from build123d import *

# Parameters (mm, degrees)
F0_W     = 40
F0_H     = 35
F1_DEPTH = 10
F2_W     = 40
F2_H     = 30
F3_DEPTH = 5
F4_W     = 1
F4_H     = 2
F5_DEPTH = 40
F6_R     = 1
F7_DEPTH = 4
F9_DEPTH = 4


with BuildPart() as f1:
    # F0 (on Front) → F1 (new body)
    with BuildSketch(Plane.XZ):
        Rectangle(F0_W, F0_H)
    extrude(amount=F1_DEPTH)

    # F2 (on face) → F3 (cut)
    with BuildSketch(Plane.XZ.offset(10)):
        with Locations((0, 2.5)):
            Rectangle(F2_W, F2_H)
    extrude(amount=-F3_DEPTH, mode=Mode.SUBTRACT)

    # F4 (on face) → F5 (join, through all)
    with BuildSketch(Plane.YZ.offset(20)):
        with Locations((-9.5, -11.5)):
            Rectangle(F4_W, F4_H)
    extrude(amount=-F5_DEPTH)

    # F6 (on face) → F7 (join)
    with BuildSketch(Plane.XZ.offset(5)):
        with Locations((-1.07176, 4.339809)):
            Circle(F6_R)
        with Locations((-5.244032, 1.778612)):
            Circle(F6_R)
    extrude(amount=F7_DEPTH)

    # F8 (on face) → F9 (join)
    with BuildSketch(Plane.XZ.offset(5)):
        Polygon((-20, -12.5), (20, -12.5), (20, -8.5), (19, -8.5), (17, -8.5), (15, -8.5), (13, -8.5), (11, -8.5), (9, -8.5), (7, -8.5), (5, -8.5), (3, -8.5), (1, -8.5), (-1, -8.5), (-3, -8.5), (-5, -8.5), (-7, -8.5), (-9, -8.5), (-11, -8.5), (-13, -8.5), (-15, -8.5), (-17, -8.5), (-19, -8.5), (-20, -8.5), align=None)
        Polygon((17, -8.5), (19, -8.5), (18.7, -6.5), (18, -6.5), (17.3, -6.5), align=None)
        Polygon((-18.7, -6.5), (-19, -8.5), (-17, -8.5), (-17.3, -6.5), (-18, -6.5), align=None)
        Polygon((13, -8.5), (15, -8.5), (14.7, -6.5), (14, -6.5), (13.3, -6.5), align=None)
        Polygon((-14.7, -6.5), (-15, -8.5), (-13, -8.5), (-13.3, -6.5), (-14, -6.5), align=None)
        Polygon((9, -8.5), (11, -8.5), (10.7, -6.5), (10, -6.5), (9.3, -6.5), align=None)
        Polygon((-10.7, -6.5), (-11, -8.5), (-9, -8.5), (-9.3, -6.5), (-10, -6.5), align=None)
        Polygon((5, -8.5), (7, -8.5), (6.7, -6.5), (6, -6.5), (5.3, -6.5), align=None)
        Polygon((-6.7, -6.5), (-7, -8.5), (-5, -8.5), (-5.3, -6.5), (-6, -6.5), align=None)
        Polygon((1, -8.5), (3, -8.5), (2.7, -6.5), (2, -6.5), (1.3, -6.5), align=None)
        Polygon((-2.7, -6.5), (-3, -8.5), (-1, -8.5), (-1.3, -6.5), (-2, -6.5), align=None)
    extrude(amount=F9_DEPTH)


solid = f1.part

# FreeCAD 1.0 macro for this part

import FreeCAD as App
import Part
import Sketcher

V = App.Vector

doc = App.newDocument("Part")
body = doc.addObject("PartDesign::Body", "Body")

# Sketch on XZ plane
sketch1 = body.newObject("Sketcher::SketchObject", "Sketch")
sketch1.AttachmentSupport = (doc.getObject("XZ_Plane"), [""])
sketch1.MapMode = "FlatFace"
sketch1.addGeometry([
    Part.LineSegment(V(-20, 18, 0), V(-20, -18, 0)),
    Part.LineSegment(V(-20, -18, 0), V(20, -18, 0)),
    Part.LineSegment(V(20, -18, 0), V(20, 18, 0)),
    Part.LineSegment(V(20, 18, 0), V(-20, 18, 0)),
], False)
sketch1.addConstraint([
    Sketcher.Constraint("Coincident", 0, 2, 1, 1),
    Sketcher.Constraint("Coincident", 1, 2, 2, 1),
    Sketcher.Constraint("Coincident", 2, 2, 3, 1),
    Sketcher.Constraint("Coincident", 3, 2, 0, 1),
    Sketcher.Constraint("Vertical", 0),
    Sketcher.Constraint("Horizontal", 1),
    Sketcher.Constraint("Vertical", 2),
    Sketcher.Constraint("Horizontal", 3),
    Sketcher.Constraint("Symmetric", 0, 2, 2, 2, -1, 1),
    Sketcher.Constraint("DistanceX", 1, 1, 1, 2, 40.0),
    Sketcher.Constraint("DistanceY", 0, 2, 0, 1, 35.0),
])
pad1 = body.newObject("PartDesign::Pad", "Pad")
pad1.Profile = sketch1
pad1.Length = 10

# Sketch on XZ plane
sketch2 = body.newObject("Sketcher::SketchObject", "Sketch001")
sketch2.AttachmentSupport = (doc.getObject("XZ_Plane"), [""])
sketch2.MapMode = "FlatFace"
sketch2.AttachmentOffset = App.Placement(V(0, 0, 10), App.Rotation())
sketch2.addGeometry([
    Part.LineSegment(V(-20, 18, 0), V(-20, -12, 0)),
    Part.LineSegment(V(-20, -12, 0), V(20, -12, 0)),
    Part.LineSegment(V(20, -12, 0), V(20, 18, 0)),
    Part.LineSegment(V(20, 18, 0), V(-20, 18, 0)),
], False)
sketch2.addConstraint([
    Sketcher.Constraint("Coincident", 0, 2, 1, 1),
    Sketcher.Constraint("Coincident", 1, 2, 2, 1),
    Sketcher.Constraint("Coincident", 2, 2, 3, 1),
    Sketcher.Constraint("Coincident", 3, 2, 0, 1),
    Sketcher.Constraint("Vertical", 0),
    Sketcher.Constraint("Horizontal", 1),
    Sketcher.Constraint("Vertical", 2),
    Sketcher.Constraint("Horizontal", 3),
    Sketcher.Constraint("DistanceX", 1, 1, 1, 2, 40.0),
    Sketcher.Constraint("DistanceY", 0, 2, 0, 1, 30.0),
    Sketcher.Constraint("DistanceX", 0, 2, -1, 1, 20.0),
    Sketcher.Constraint("DistanceY", 0, 2, -1, 1, 12.5),
])
pocket1 = body.newObject("PartDesign::Pocket", "Pocket")
pocket1.Profile = sketch2
pocket1.Length = 5

# Sketch on YZ plane
sketch3 = body.newObject("Sketcher::SketchObject", "Sketch002")
sketch3.AttachmentSupport = (doc.getObject("YZ_Plane"), [""])
sketch3.MapMode = "FlatFace"
sketch3.AttachmentOffset = App.Placement(V(0, 0, 20), App.Rotation())
sketch3.addGeometry([
    Part.LineSegment(V(-10, -10.5, 0), V(-10, -12.5, 0)),
    Part.LineSegment(V(-10, -12.5, 0), V(-9, -12.5, 0)),
    Part.LineSegment(V(-9, -12.5, 0), V(-9, -10.5, 0)),
    Part.LineSegment(V(-9, -10.5, 0), V(-10, -10.5, 0)),
], False)
sketch3.addConstraint([
    Sketcher.Constraint("Coincident", 0, 2, 1, 1),
    Sketcher.Constraint("Coincident", 1, 2, 2, 1),
    Sketcher.Constraint("Coincident", 2, 2, 3, 1),
    Sketcher.Constraint("Coincident", 3, 2, 0, 1),
    Sketcher.Constraint("Vertical", 0),
    Sketcher.Constraint("Horizontal", 1),
    Sketcher.Constraint("Vertical", 2),
    Sketcher.Constraint("Horizontal", 3),
    Sketcher.Constraint("DistanceX", 1, 1, 1, 2, 1.0),
    Sketcher.Constraint("DistanceY", 0, 2, 0, 1, 2.0),
    Sketcher.Constraint("DistanceX", 0, 2, -1, 1, 10.0),
    Sketcher.Constraint("DistanceY", 0, 2, -1, 1, 12.5),
])
pad2 = body.newObject("PartDesign::Pad", "Pad001")
pad2.Profile = sketch3
pad2.Length = 40
pad2.Reversed = True

# Sketch on XZ plane
sketch4 = body.newObject("Sketcher::SketchObject", "Sketch003")
sketch4.AttachmentSupport = (doc.getObject("XZ_Plane"), [""])
sketch4.MapMode = "FlatFace"
sketch4.AttachmentOffset = App.Placement(V(0, 0, 5), App.Rotation())
sketch4.addGeometry([
    Part.Circle(V(-1.1, 4.3, 0), V(0, 0, 1), 1),
    Part.Circle(V(-5.2, 1.8, 0), V(0, 0, 1), 1),
], False)
sketch4.addConstraint([
    Sketcher.Constraint("Equal", 0, 1),
    Sketcher.Constraint("Diameter", 0, 2.0),
    Sketcher.Constraint("DistanceX", 0, 3, -1, 1, 1.07176),
    Sketcher.Constraint("DistanceY", -1, 1, 0, 3, 4.339809),
    Sketcher.Constraint("DistanceX", 1, 3, -1, 1, 5.244032),
    Sketcher.Constraint("DistanceY", -1, 1, 1, 3, 1.778612),
])
pad3 = body.newObject("PartDesign::Pad", "Pad002")
pad3.Profile = sketch4
pad3.Length = 4

# Sketch on XZ plane
sketch5 = body.newObject("Sketcher::SketchObject", "Sketch004")
sketch5.AttachmentSupport = (doc.getObject("XZ_Plane"), [""])
sketch5.MapMode = "FlatFace"
sketch5.AttachmentOffset = App.Placement(V(0, 0, 5), App.Rotation())
sketch5.addGeometry([
    Part.LineSegment(V(-20, -12.5, 0), V(20, -12.5, 0)),  # 0
    Part.LineSegment(V(20, -12.5, 0), V(20, -8.5, 0)),  # 1
    Part.LineSegment(V(20, -8.5, 0), V(19, -8.5, 0)),  # 2
    Part.LineSegment(V(19, -8.5, 0), V(18.7, -6.5, 0)),  # 3
    Part.LineSegment(V(18.7, -6.5, 0), V(17.3, -6.5, 0)),  # 4
    Part.LineSegment(V(17.3, -6.5, 0), V(17, -8.5, 0)),  # 5
    Part.LineSegment(V(17, -8.5, 0), V(15, -8.5, 0)),  # 6
    Part.LineSegment(V(15, -8.5, 0), V(14.7, -6.5, 0)),  # 7
    Part.LineSegment(V(14.7, -6.5, 0), V(13.3, -6.5, 0)),  # 8
    Part.LineSegment(V(13.3, -6.5, 0), V(13, -8.5, 0)),  # 9
    Part.LineSegment(V(13, -8.5, 0), V(11, -8.5, 0)),  # 10
    Part.LineSegment(V(11, -8.5, 0), V(10.7, -6.5, 0)),  # 11
    Part.LineSegment(V(10.7, -6.5, 0), V(9.3, -6.5, 0)),  # 12
    Part.LineSegment(V(9.3, -6.5, 0), V(9, -8.5, 0)),  # 13
    Part.LineSegment(V(9, -8.5, 0), V(7, -8.5, 0)),  # 14
    Part.LineSegment(V(7, -8.5, 0), V(6.7, -6.5, 0)),  # 15
    Part.LineSegment(V(6.7, -6.5, 0), V(5.3, -6.5, 0)),  # 16
    Part.LineSegment(V(5.3, -6.5, 0), V(5, -8.5, 0)),  # 17
    Part.LineSegment(V(5, -8.5, 0), V(3, -8.5, 0)),  # 18
    Part.LineSegment(V(3, -8.5, 0), V(2.7, -6.5, 0)),  # 19
    Part.LineSegment(V(2.7, -6.5, 0), V(1.3, -6.5, 0)),  # 20
    Part.LineSegment(V(1.3, -6.5, 0), V(1, -8.5, 0)),  # 21
    Part.LineSegment(V(1, -8.5, 0), V(-1, -8.5, 0)),  # 22
    Part.LineSegment(V(-1, -8.5, 0), V(-1.3, -6.5, 0)),  # 23
    Part.LineSegment(V(-1.3, -6.5, 0), V(-2.7, -6.5, 0)),  # 24
    Part.LineSegment(V(-2.7, -6.5, 0), V(-3, -8.5, 0)),  # 25
    Part.LineSegment(V(-3, -8.5, 0), V(-5, -8.5, 0)),  # 26
    Part.LineSegment(V(-5, -8.5, 0), V(-5.3, -6.5, 0)),  # 27
    Part.LineSegment(V(-5.3, -6.5, 0), V(-6.7, -6.5, 0)),  # 28
    Part.LineSegment(V(-6.7, -6.5, 0), V(-7, -8.5, 0)),  # 29
    Part.LineSegment(V(-7, -8.5, 0), V(-9, -8.5, 0)),  # 30
    Part.LineSegment(V(-9, -8.5, 0), V(-9.3, -6.5, 0)),  # 31
    Part.LineSegment(V(-9.3, -6.5, 0), V(-10.7, -6.5, 0)),  # 32
    Part.LineSegment(V(-10.7, -6.5, 0), V(-11, -8.5, 0)),  # 33
    Part.LineSegment(V(-11, -8.5, 0), V(-13, -8.5, 0)),  # 34
    Part.LineSegment(V(-13, -8.5, 0), V(-13.3, -6.5, 0)),  # 35
    Part.LineSegment(V(-13.3, -6.5, 0), V(-14.7, -6.5, 0)),  # 36
    Part.LineSegment(V(-14.7, -6.5, 0), V(-15, -8.5, 0)),  # 37
    Part.LineSegment(V(-15, -8.5, 0), V(-17, -8.5, 0)),  # 38
    Part.LineSegment(V(-17, -8.5, 0), V(-17.3, -6.5, 0)),  # 39
    Part.LineSegment(V(-17.3, -6.5, 0), V(-18.7, -6.5, 0)),  # 40
    Part.LineSegment(V(-18.7, -6.5, 0), V(-19, -8.5, 0)),  # 41
    Part.LineSegment(V(-19, -8.5, 0), V(-20, -8.5, 0)),  # 42
    Part.LineSegment(V(-20, -8.5, 0), V(-20, -12.5, 0)),  # 43
], False)
sketch5.addConstraint([
    Sketcher.Constraint("Coincident", 0, 2, 1, 1),
    Sketcher.Constraint("Coincident", 1, 2, 2, 1),
    Sketcher.Constraint("Coincident", 2, 2, 3, 1),
    Sketcher.Constraint("Coincident", 3, 2, 4, 1),
    Sketcher.Constraint("Coincident", 4, 2, 5, 1),
    Sketcher.Constraint("Coincident", 5, 2, 6, 1),
    Sketcher.Constraint("Coincident", 6, 2, 7, 1),
    Sketcher.Constraint("Coincident", 7, 2, 8, 1),
    Sketcher.Constraint("Coincident", 8, 2, 9, 1),
    Sketcher.Constraint("Coincident", 9, 2, 10, 1),
    Sketcher.Constraint("Coincident", 10, 2, 11, 1),
    Sketcher.Constraint("Coincident", 11, 2, 12, 1),
    Sketcher.Constraint("Coincident", 12, 2, 13, 1),
    Sketcher.Constraint("Coincident", 13, 2, 14, 1),
    Sketcher.Constraint("Coincident", 14, 2, 15, 1),
    Sketcher.Constraint("Coincident", 15, 2, 16, 1),
    Sketcher.Constraint("Coincident", 16, 2, 17, 1),
    Sketcher.Constraint("Coincident", 17, 2, 18, 1),
    Sketcher.Constraint("Coincident", 18, 2, 19, 1),
    Sketcher.Constraint("Coincident", 19, 2, 20, 1),
    Sketcher.Constraint("Coincident", 20, 2, 21, 1),
    Sketcher.Constraint("Coincident", 21, 2, 22, 1),
    Sketcher.Constraint("Coincident", 22, 2, 23, 1),
    Sketcher.Constraint("Coincident", 23, 2, 24, 1),
    Sketcher.Constraint("Coincident", 24, 2, 25, 1),
    Sketcher.Constraint("Coincident", 25, 2, 26, 1),
    Sketcher.Constraint("Coincident", 26, 2, 27, 1),
    Sketcher.Constraint("Coincident", 27, 2, 28, 1),
    Sketcher.Constraint("Coincident", 28, 2, 29, 1),
    Sketcher.Constraint("Coincident", 29, 2, 30, 1),
    Sketcher.Constraint("Coincident", 30, 2, 31, 1),
    Sketcher.Constraint("Coincident", 31, 2, 32, 1),
    Sketcher.Constraint("Coincident", 32, 2, 33, 1),
    Sketcher.Constraint("Coincident", 33, 2, 34, 1),
    Sketcher.Constraint("Coincident", 34, 2, 35, 1),
    Sketcher.Constraint("Coincident", 35, 2, 36, 1),
    Sketcher.Constraint("Coincident", 36, 2, 37, 1),
    Sketcher.Constraint("Coincident", 37, 2, 38, 1),
    Sketcher.Constraint("Coincident", 38, 2, 39, 1),
    Sketcher.Constraint("Coincident", 39, 2, 40, 1),
    Sketcher.Constraint("Coincident", 40, 2, 41, 1),
    Sketcher.Constraint("Coincident", 41, 2, 42, 1),
    Sketcher.Constraint("Coincident", 42, 2, 43, 1),
    Sketcher.Constraint("Coincident", 43, 2, 0, 1),
    Sketcher.Constraint("Horizontal", 0),
    Sketcher.Constraint("Vertical", 1),
    Sketcher.Constraint("Horizontal", 2),
    Sketcher.Constraint("Horizontal", 4),
    Sketcher.Constraint("Horizontal", 6),
    Sketcher.Constraint("Horizontal", 8),
    Sketcher.Constraint("Horizontal", 10),
    Sketcher.Constraint("Horizontal", 12),
    Sketcher.Constraint("Horizontal", 14),
    Sketcher.Constraint("Horizontal", 16),
    Sketcher.Constraint("Horizontal", 18),
    Sketcher.Constraint("Horizontal", 20),
    Sketcher.Constraint("Horizontal", 22),
    Sketcher.Constraint("Horizontal", 24),
    Sketcher.Constraint("Horizontal", 26),
    Sketcher.Constraint("Horizontal", 28),
    Sketcher.Constraint("Horizontal", 30),
    Sketcher.Constraint("Horizontal", 32),
    Sketcher.Constraint("Horizontal", 34),
    Sketcher.Constraint("Horizontal", 36),
    Sketcher.Constraint("Horizontal", 38),
    Sketcher.Constraint("Horizontal", 40),
    Sketcher.Constraint("Horizontal", 42),
    Sketcher.Constraint("Vertical", 43),
    Sketcher.Constraint("Symmetric", 20, 2, 23, 2, -2),
    Sketcher.Constraint("Symmetric", 18, 2, 25, 2, -2),
    Sketcher.Constraint("Symmetric", 16, 2, 27, 2, -2),
    Sketcher.Constraint("Symmetric", 14, 2, 29, 2, -2),
    Sketcher.Constraint("Symmetric", 12, 2, 31, 2, -2),
    Sketcher.Constraint("Symmetric", 10, 2, 33, 2, -2),
    Sketcher.Constraint("Symmetric", 8, 2, 35, 2, -2),
    Sketcher.Constraint("Symmetric", 6, 2, 37, 2, -2),
    Sketcher.Constraint("Symmetric", 4, 2, 39, 2, -2),
    Sketcher.Constraint("Symmetric", 2, 2, 41, 2, -2),
    Sketcher.Constraint("Parallel", 3, 7),
    Sketcher.Constraint("Parallel", 5, 9),
    Sketcher.Constraint("Parallel", 7, 11),
    Sketcher.Constraint("Parallel", 9, 13),
    Sketcher.Constraint("Parallel", 11, 15),
    Sketcher.Constraint("Parallel", 13, 17),
    Sketcher.Constraint("Parallel", 15, 19),
    Sketcher.Constraint("Parallel", 17, 21),
    Sketcher.Constraint("Parallel", 19, 23),
    Sketcher.Constraint("Parallel", 21, 25),
    Sketcher.Constraint("Parallel", 23, 27),
    Sketcher.Constraint("Parallel", 25, 29),
    Sketcher.Constraint("Parallel", 27, 31),
    Sketcher.Constraint("Parallel", 29, 33),
    Sketcher.Constraint("Parallel", 31, 35),
    Sketcher.Constraint("Parallel", 33, 37),
    Sketcher.Constraint("Parallel", 35, 39),
    Sketcher.Constraint("Parallel", 37, 41),
    Sketcher.Constraint("Horizontal", 2, 2, 5, 2),
    Sketcher.Constraint("Horizontal", 4, 2, 7, 2),
    Sketcher.Constraint("Horizontal", 6, 2, 9, 2),
    Sketcher.Constraint("Horizontal", 8, 2, 11, 2),
    Sketcher.Constraint("Horizontal", 10, 2, 13, 2),
    Sketcher.Constraint("Horizontal", 12, 2, 15, 2),
    Sketcher.Constraint("Horizontal", 14, 2, 17, 2),
    Sketcher.Constraint("Horizontal", 16, 2, 19, 2),
    Sketcher.Constraint("Horizontal", 18, 2, 21, 2),
    Sketcher.Constraint("Equal", 4, 8),
    Sketcher.Constraint("Equal", 6, 10),
    Sketcher.Constraint("Equal", 8, 12),
    Sketcher.Constraint("Equal", 10, 14),
    Sketcher.Constraint("Equal", 12, 16),
    Sketcher.Constraint("Equal", 14, 18),
    Sketcher.Constraint("Equal", 16, 20),
    Sketcher.Constraint("Equal", 18, 22),
    Sketcher.Constraint("Equal", 20, 24),
    Sketcher.Constraint("Equal", 2, 42),
    Sketcher.Constraint("DistanceX", 0, 1, 0, 2, 40.0),
    Sketcher.Constraint("DistanceX", 2, 2, 2, 1, 1.0),
    Sketcher.Constraint("DistanceX", 6, 2, 6, 1, 2.0),
    Sketcher.Constraint("DistanceY", 1, 1, 1, 2, 4.0),
    Sketcher.Constraint("DistanceX", 4, 2, 4, 1, 1.4),
    Sketcher.Constraint("DistanceY", 2, 2, 3, 2, 2.0),
    Sketcher.Constraint("DistanceY", 0, 2, -1, 1, 12.5),
])
pad4 = body.newObject("PartDesign::Pad", "Pad003")
pad4.Profile = sketch5
pad4.Length = 4

doc.recompute()
